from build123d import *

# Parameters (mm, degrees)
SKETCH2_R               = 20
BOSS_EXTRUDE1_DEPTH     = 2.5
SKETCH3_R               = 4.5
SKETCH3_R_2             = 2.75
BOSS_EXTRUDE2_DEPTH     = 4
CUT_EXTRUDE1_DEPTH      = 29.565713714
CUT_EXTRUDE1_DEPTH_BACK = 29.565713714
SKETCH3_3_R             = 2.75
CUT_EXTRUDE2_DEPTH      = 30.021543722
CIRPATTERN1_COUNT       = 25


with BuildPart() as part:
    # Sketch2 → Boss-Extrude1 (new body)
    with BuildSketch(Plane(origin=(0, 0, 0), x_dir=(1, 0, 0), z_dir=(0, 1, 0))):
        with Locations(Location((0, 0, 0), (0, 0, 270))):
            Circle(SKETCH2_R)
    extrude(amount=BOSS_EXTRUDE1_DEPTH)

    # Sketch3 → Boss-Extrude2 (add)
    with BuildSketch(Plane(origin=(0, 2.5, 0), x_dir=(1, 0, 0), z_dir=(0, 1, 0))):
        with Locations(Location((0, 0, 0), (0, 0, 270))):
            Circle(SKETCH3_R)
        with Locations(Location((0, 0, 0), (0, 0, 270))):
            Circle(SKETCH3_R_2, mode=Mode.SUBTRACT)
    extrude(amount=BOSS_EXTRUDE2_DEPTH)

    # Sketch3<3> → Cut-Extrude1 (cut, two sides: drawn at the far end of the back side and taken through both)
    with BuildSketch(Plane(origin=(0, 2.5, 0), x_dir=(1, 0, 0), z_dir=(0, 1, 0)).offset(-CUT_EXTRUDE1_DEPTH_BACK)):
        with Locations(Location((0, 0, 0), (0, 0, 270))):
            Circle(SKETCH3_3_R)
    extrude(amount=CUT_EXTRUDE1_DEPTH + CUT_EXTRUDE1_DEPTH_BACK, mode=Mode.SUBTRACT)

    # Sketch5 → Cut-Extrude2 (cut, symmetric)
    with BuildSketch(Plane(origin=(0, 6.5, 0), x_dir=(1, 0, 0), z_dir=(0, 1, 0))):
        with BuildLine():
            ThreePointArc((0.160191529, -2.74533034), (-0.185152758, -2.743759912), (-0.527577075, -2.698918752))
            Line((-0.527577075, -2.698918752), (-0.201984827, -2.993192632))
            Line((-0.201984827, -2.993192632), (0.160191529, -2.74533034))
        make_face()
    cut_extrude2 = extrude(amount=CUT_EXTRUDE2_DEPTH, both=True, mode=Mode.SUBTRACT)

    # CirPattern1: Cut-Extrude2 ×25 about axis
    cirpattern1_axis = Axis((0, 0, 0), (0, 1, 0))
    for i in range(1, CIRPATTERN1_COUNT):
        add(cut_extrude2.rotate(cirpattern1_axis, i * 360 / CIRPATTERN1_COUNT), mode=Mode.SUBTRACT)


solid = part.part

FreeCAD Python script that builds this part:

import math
import FreeCAD as App
import Part
import Sketcher

V = App.Vector

doc = App.newDocument("Part")
body = doc.addObject("PartDesign::Body", "Body")

sketch1 = body.newObject("Sketcher::SketchObject", "Sketch")
sketch1.AttachmentSupport = (doc.getObject("XZ_Plane"), [""])
sketch1.MapMode = "FlatFace"
sketch1.addGeometry(Part.Circle(V(0, 0, 0), V(0, 0, 1), 20), False)
sketch1.addConstraint(Sketcher.Constraint("Coincident", 0, 3, -1, 1))
sketch1.addConstraint(Sketcher.Constraint("Diameter", 0, 40.0))
pad1 = body.newObject("PartDesign::Pad", "Pad")
pad1.Profile = sketch1
pad1.Length = 2.5
pad1.Reversed = True

sketch2 = body.newObject("Sketcher::SketchObject", "Sketch001")
sketch2.AttachmentSupport = (doc.getObject("XZ_Plane"), [""])
sketch2.MapMode = "FlatFace"
sketch2.AttachmentOffset = App.Placement(V(0, 0, -2.5), App.Rotation())
sketch2.addGeometry(Part.Circle(V(0, 0, 0), V(0, 0, 1), 4.5), False)
sketch2.addGeometry(Part.Circle(V(0, 0, 0), V(0, 0, 1), 2.8), False)
sketch2.addConstraint(Sketcher.Constraint("Coincident", 0, 3, -1, 1))
sketch2.addConstraint(Sketcher.Constraint("Coincident", 1, 3, -1, 1))
sketch2.addConstraint(Sketcher.Constraint("Diameter", 0, 9.0))
sketch2.addConstraint(Sketcher.Constraint("Diameter", 1, 5.5))
pad2 = body.newObject("PartDesign::Pad", "Pad001")
pad2.Profile = sketch2
pad2.Length = 4
pad2.Reversed = True

sketch3 = body.newObject("Sketcher::SketchObject", "Sketch002")
sketch3.AttachmentSupport = (doc.getObject("XZ_Plane"), [""])
sketch3.MapMode = "FlatFace"
sketch3.AttachmentOffset = App.Placement(V(0, 0, -2.5), App.Rotation())
sketch3.addGeometry(Part.Circle(V(0, 0, 0), V(0, 0, 1), 2.8), False)
sketch3.addConstraint(Sketcher.Constraint("Coincident", 0, 3, -1, 1))
sketch3.addConstraint(Sketcher.Constraint("Diameter", 0, 5.5))
pocket1 = body.newObject("PartDesign::Pocket", "Pocket")
pocket1.Profile = sketch3
pocket1.Type = "ThroughAll"
pocket1.Midplane = True

sketch4 = body.newObject("Sketcher::SketchObject", "Sketch003")
sketch4.AttachmentSupport = (doc.getObject("XZ_Plane"), [""])
sketch4.MapMode = "FlatFace"
sketch4.AttachmentOffset = App.Placement(V(0, 0, -6.5), App.Rotation())
sketch4.addGeometry(Part.ArcOfCircle(Part.Circle(V(0, 0, 0), V(0, 0, 1), 2.75), math.radians(86.66), math.radians(101.06)), False)
sketch4.addGeometry(Part.LineSegment(V(-0.53, 2.7, 0), V(-0.2, 2.99, 0)), False)
sketch4.addGeometry(Part.LineSegment(V(-0.2, 2.99, 0), V(0.16, 2.75, 0)), False)
sketch4.addConstraint(Sketcher.Constraint("Coincident", 0, 2, 1, 1))
sketch4.addConstraint(Sketcher.Constraint("Coincident", 1, 2, 2, 1))
sketch4.addConstraint(Sketcher.Constraint("Coincident", 2, 2, 0, 1))
sketch4.addConstraint(Sketcher.Constraint("Coincident", 0, 3, -1, 1))
sketch4.addConstraint(Sketcher.Constraint("Equal", 1, 2))
sketch4.addConstraint(Sketcher.Constraint("Radius", 0, 2.75))
sketch4.addConstraint(Sketcher.Constraint("Distance", 1, 0.438871))
sketch4.addConstraint(Sketcher.Constraint("DistanceY", -1, 1, 0, 2, 2.698919))
sketch4.addConstraint(Sketcher.Constraint("DistanceX", -1, 1, 2, 2, 0.160192))
pocket2 = body.newObject("PartDesign::Pocket", "Pocket001")
pocket2.Profile = sketch4
pocket2.Length = 60.043087
pocket2.Midplane = True
doc.recompute()

polarpattern = body.newObject("PartDesign::PolarPattern", "PolarPattern")
polarpattern.Originals = [pocket2]
polarpattern.Axis = (doc.getObject("Y_Axis"), [""])
polarpattern.Angle = 360
polarpattern.Occurrences = 25
body.Tip = polarpattern

doc.recompute()
